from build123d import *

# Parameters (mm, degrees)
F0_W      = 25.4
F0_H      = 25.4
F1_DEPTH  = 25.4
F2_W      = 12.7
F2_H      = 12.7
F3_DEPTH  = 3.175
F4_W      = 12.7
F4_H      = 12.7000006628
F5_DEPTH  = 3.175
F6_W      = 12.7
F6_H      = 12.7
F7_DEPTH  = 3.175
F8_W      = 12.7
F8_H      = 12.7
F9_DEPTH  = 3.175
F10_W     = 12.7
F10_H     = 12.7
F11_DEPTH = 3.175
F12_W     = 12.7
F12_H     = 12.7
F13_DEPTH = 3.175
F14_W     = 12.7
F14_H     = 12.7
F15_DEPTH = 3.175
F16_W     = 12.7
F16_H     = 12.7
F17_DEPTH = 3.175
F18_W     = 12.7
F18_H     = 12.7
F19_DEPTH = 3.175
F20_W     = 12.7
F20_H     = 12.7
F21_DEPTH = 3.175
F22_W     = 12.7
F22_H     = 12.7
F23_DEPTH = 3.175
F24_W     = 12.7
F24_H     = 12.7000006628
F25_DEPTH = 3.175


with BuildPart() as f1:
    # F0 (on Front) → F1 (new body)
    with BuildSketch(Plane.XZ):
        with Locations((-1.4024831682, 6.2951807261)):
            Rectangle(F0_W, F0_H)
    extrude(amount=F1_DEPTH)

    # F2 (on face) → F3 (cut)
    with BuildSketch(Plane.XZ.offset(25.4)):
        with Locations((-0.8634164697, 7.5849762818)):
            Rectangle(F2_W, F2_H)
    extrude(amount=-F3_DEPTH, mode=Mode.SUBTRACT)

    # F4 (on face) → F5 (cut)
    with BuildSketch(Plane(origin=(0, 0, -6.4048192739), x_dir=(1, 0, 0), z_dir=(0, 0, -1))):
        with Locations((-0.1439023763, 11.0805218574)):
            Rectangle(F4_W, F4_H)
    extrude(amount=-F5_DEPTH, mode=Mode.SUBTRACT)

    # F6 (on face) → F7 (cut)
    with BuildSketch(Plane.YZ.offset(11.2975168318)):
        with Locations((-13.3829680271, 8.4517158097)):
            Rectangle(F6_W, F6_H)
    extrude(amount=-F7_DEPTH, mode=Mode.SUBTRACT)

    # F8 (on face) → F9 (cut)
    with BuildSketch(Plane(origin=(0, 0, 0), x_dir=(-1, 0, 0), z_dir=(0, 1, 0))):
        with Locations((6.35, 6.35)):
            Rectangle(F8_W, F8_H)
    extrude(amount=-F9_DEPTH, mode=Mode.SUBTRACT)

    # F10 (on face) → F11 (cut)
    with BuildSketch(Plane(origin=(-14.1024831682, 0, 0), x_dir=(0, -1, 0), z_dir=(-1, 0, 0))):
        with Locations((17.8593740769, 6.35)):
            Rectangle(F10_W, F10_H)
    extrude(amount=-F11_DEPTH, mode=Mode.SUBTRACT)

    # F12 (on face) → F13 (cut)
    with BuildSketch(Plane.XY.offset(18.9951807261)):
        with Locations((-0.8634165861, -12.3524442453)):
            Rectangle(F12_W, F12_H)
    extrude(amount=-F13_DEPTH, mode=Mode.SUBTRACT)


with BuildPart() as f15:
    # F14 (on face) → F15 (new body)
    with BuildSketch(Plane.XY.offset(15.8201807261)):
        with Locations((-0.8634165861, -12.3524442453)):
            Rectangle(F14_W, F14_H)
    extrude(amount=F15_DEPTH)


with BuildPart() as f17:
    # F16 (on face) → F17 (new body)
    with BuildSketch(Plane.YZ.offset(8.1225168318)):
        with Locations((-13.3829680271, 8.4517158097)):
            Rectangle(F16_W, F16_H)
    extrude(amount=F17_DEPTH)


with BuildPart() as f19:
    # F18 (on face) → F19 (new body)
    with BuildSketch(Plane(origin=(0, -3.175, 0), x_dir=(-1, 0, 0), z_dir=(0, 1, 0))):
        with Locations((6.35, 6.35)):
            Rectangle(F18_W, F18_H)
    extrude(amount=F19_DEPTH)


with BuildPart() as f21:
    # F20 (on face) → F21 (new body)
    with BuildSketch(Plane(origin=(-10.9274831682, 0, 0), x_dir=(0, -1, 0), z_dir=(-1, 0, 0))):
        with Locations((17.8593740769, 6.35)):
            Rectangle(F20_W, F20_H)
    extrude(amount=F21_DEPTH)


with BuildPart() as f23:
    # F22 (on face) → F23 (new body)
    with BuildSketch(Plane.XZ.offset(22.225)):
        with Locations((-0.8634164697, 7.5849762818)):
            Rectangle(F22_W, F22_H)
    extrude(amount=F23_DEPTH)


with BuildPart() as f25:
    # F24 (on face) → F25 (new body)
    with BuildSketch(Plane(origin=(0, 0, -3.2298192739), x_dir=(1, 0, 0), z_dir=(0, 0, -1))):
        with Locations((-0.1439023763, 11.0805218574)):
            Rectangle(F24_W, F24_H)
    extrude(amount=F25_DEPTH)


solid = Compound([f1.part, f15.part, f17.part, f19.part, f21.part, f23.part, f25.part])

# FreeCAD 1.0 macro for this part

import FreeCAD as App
import Part
import Sketcher

V = App.Vector
Q = App.Units.Quantity


def add_polygon(sketch, points):
    """Adds a closed chain of lines whose ends are joined by coincident constraints."""
    first, n = sketch.GeometryCount, len(points)
    for a, b in zip(points, points[1:] + points[:1]):
        sketch.addGeometry(Part.LineSegment(App.Vector(*a, 0), App.Vector(*b, 0)), False)
    for i in range(n):
        sketch.addConstraint(Sketcher.Constraint("Coincident", first + i, 2, first + (i + 1) % n, 1))

doc = App.newDocument("Part")
body = doc.addObject("PartDesign::Body", "Body")

# Sketch on XZ plane
sketch1 = doc.addObject("Sketcher::SketchObject", "Sketch")
body.addObject(sketch1)
sketch1.AttachmentSupport = (doc.XZ_Plane, [""])
sketch1.MapMode = "FlatFace"
add_polygon(sketch1, [(-14, 19), (-14, -6), (11, -6), (11, 19)])  # lines 0-3
sketch1.addConstraint(Sketcher.Constraint("Vertical", 0))
sketch1.addConstraint(Sketcher.Constraint("Horizontal", 1))
sketch1.addConstraint(Sketcher.Constraint("Vertical", 2))
sketch1.addConstraint(Sketcher.Constraint("Horizontal", 3))
sketch1.addConstraint(Sketcher.Constraint("Equal", 3, 0))
sketch1.addConstraint(Sketcher.Constraint("DistanceX", 1, 1, 1, 2, Q("1 in")))
sketch1.addConstraint(Sketcher.Constraint("DistanceY", 0, 2, -1, 1, Q("6.404819 mm")))
sketch1.addConstraint(Sketcher.Constraint("DistanceX", 0, 2, -1, 1, Q("14.102483 mm")))
pad1 = doc.addObject("PartDesign::Pad", "Pad")
body.addObject(pad1)
pad1.Profile = sketch1
pad1.Length = Q("1 in")

# Sketch on XZ plane
sketch2 = doc.addObject("Sketcher::SketchObject", "Sketch001")
body.addObject(sketch2)
sketch2.AttachmentSupport = (doc.XZ_Plane, [""])
sketch2.MapMode = "FlatFace"
sketch2.AttachmentOffset = App.Placement(V(0, 0, 1 * 25.4), App.Rotation())
add_polygon(sketch2, [(-7, 14), (-7, 1), (5, 1), (5, 14)])  # lines 0-3
sketch2.addConstraint(Sketcher.Constraint("Vertical", 0))
sketch2.addConstraint(Sketcher.Constraint("Horizontal", 1))
sketch2.addConstraint(Sketcher.Constraint("Vertical", 2))
sketch2.addConstraint(Sketcher.Constraint("Horizontal", 3))
sketch2.addConstraint(Sketcher.Constraint("Equal", 3, 0))
sketch2.addConstraint(Sketcher.Constraint("DistanceX", 1, 1, 1, 2, Q("0.5 in")))
sketch2.addConstraint(Sketcher.Constraint("DistanceX", 0, 2, -1, 1, Q("7.213416 mm")))
sketch2.addConstraint(Sketcher.Constraint("DistanceY", -1, 1, 0, 2, Q("1.234976 mm")))
pocket1 = doc.addObject("PartDesign::Pocket", "Pocket")
body.addObject(pocket1)
pocket1.Profile = sketch2
pocket1.Length = Q("0.125 in")

# Sketch on XY plane
sketch3 = doc.addObject("Sketcher::SketchObject", "Sketch002")
body.addObject(sketch3)
sketch3.AttachmentSupport = (doc.XY_Plane, [""])
sketch3.MapMode = "FlatFace"
sketch3.AttachmentOffset = App.Placement(V(0, 0, -6.404819), App.Rotation())
add_polygon(sketch3, [(-6, -17), (-6, -5), (6, -5), (6, -17)])  # lines 0-3
sketch3.addConstraint(Sketcher.Constraint("Vertical", 0))
sketch3.addConstraint(Sketcher.Constraint("Horizontal", 1))
sketch3.addConstraint(Sketcher.Constraint("Vertical", 2))
sketch3.addConstraint(Sketcher.Constraint("Horizontal", 3))
sketch3.addConstraint(Sketcher.Constraint("Equal", 3, 0))
sketch3.addConstraint(Sketcher.Constraint("DistanceX", 1, 1, 1, 2, Q("0.5 in")))
sketch3.addConstraint(Sketcher.Constraint("DistanceY", 0, 2, -1, 1, Q("4.730522 mm")))
sketch3.addConstraint(Sketcher.Constraint("DistanceX", 0, 2, -1, 1, Q("6.493902 mm")))
pocket2 = doc.addObject("PartDesign::Pocket", "Pocket001")
body.addObject(pocket2)
pocket2.Profile = sketch3
pocket2.Length = Q("0.125 in")
pocket2.Reversed = True

# Sketch on YZ plane
sketch4 = doc.addObject("Sketcher::SketchObject", "Sketch003")
body.addObject(sketch4)
sketch4.AttachmentSupport = (doc.YZ_Plane, [""])
sketch4.MapMode = "FlatFace"
sketch4.AttachmentOffset = App.Placement(V(0, 0, 11.297517), App.Rotation())
add_polygon(sketch4, [(-20, 15), (-20, 2), (-7, 2), (-7, 15)])  # lines 0-3
sketch4.addConstraint(Sketcher.Constraint("Vertical", 0))
sketch4.addConstraint(Sketcher.Constraint("Horizontal", 1))
sketch4.addConstraint(Sketcher.Constraint("Vertical", 2))
sketch4.addConstraint(Sketcher.Constraint("Horizontal", 3))
sketch4.addConstraint(Sketcher.Constraint("Equal", 3, 0))
sketch4.addConstraint(Sketcher.Constraint("DistanceX", 1, 1, 1, 2, Q("0.5 in")))
sketch4.addConstraint(Sketcher.Constraint("DistanceX", 0, 2, -1, 1, Q("19.732968 mm")))
sketch4.addConstraint(Sketcher.Constraint("DistanceY", -1, 1, 0, 2, Q("2.101716 mm")))
pocket3 = doc.addObject("PartDesign::Pocket", "Pocket002")
body.addObject(pocket3)
pocket3.Profile = sketch4
pocket3.Length = Q("0.125 in")

# Sketch on XZ plane
sketch5 = doc.addObject("Sketcher::SketchObject", "Sketch004")
body.addObject(sketch5)
sketch5.AttachmentSupport = (doc.XZ_Plane, [""])
sketch5.MapMode = "FlatFace"
add_polygon(sketch5, [(0, 13), (0, 0), (-13, 0), (-13, 13)])  # lines 0-3
sketch5.addConstraint(Sketcher.Constraint("Vertical", 0))
sketch5.addConstraint(Sketcher.Constraint("Horizontal", 1))
sketch5.addConstraint(Sketcher.Constraint("Vertical", 2))
sketch5.addConstraint(Sketcher.Constraint("Horizontal", 3))
sketch5.addConstraint(Sketcher.Constraint("Coincident", 0, 2, -1, 1))
sketch5.addConstraint(Sketcher.Constraint("Equal", 3, 0))
sketch5.addConstraint(Sketcher.Constraint("DistanceX", 1, 2, 1, 1, Q("0.5 in")))
pocket4 = doc.addObject("PartDesign::Pocket", "Pocket003")
body.addObject(pocket4)
pocket4.Profile = sketch5
pocket4.Length = Q("0.125 in")
pocket4.Reversed = True

# Sketch on YZ plane
sketch6 = doc.addObject("Sketcher::SketchObject", "Sketch005")
body.addObject(sketch6)
sketch6.AttachmentSupport = (doc.YZ_Plane, [""])
sketch6.MapMode = "FlatFace"
sketch6.AttachmentOffset = App.Placement(V(0, 0, -14.102483), App.Rotation())
add_polygon(sketch6, [(-12, 13), (-12, 0), (-24, 0), (-24, 13)])  # lines 0-3
sketch6.addConstraint(Sketcher.Constraint("Vertical", 0))
sketch6.addConstraint(Sketcher.Constraint("Horizontal", 1))
sketch6.addConstraint(Sketcher.Constraint("Vertical", 2))
sketch6.addConstraint(Sketcher.Constraint("Horizontal", 3))
sketch6.addConstraint(Sketcher.Constraint("PointOnObject", 0, 2, -1))
sketch6.addConstraint(Sketcher.Constraint("Equal", 3, 0))
sketch6.addConstraint(Sketcher.Constraint("DistanceX", 1, 2, 1, 1, Q("0.5 in")))
sketch6.addConstraint(Sketcher.Constraint("DistanceX", 0, 2, -1, 1, Q("0.453125 in")))
pocket5 = doc.addObject("PartDesign::Pocket", "Pocket004")
body.addObject(pocket5)
pocket5.Profile = sketch6
pocket5.Length = Q("0.125 in")
pocket5.Reversed = True

# Sketch on XY plane
sketch7 = doc.addObject("Sketcher::SketchObject", "Sketch006")
body.addObject(sketch7)
sketch7.AttachmentSupport = (doc.XY_Plane, [""])
sketch7.MapMode = "FlatFace"
sketch7.AttachmentOffset = App.Placement(V(0, 0, 18.995181), App.Rotation())
add_polygon(sketch7, [(-7, -6), (-7, -19), (5, -19), (5, -6)])  # lines 0-3
sketch7.addConstraint(Sketcher.Constraint("Vertical", 0))
sketch7.addConstraint(Sketcher.Constraint("Horizontal", 1))
sketch7.addConstraint(Sketcher.Constraint("Vertical", 2))
sketch7.addConstraint(Sketcher.Constraint("Horizontal", 3))
sketch7.addConstraint(Sketcher.Constraint("Equal", 3, 0))
sketch7.addConstraint(Sketcher.Constraint("DistanceX", 1, 1, 1, 2, Q("0.5 in")))
sketch7.addConstraint(Sketcher.Constraint("DistanceX", 0, 2, -1, 1, Q("7.213417 mm")))
sketch7.addConstraint(Sketcher.Constraint("DistanceY", 0, 2, -1, 1, Q("18.702444 mm")))
pocket6 = doc.addObject("PartDesign::Pocket", "Pocket005")
body.addObject(pocket6)
pocket6.Profile = sketch7
pocket6.Length = Q("0.125 in")
body2 = doc.addObject("PartDesign::Body", "Body001")

# Sketch on XY plane
sketch8 = doc.addObject("Sketcher::SketchObject", "Sketch007")
body2.addObject(sketch8)
sketch8.AttachmentSupport = (doc.getObject("XY_Plane001"), [""])
sketch8.MapMode = "FlatFace"
sketch8.AttachmentOffset = App.Placement(V(0, 0, 15.820181), App.Rotation())
add_polygon(sketch8, [(-7, -6), (-7, -19), (5, -19), (5, -6)])  # lines 0-3
sketch8.addConstraint(Sketcher.Constraint("Vertical", 0))
sketch8.addConstraint(Sketcher.Constraint("Horizontal", 1))
sketch8.addConstraint(Sketcher.Constraint("Vertical", 2))
sketch8.addConstraint(Sketcher.Constraint("Horizontal", 3))
sketch8.addConstraint(Sketcher.Constraint("Equal", 3, 0))
sketch8.addConstraint(Sketcher.Constraint("DistanceX", 1, 1, 1, 2, Q("0.5 in")))
sketch8.addConstraint(Sketcher.Constraint("DistanceX", 0, 2, -1, 1, Q("7.213417 mm")))
sketch8.addConstraint(Sketcher.Constraint("DistanceY", 0, 2, -1, 1, Q("18.702444 mm")))
pad2 = doc.addObject("PartDesign::Pad", "Pad001")
body2.addObject(pad2)
pad2.Profile = sketch8
pad2.Length = Q("0.125 in")
body3 = doc.addObject("PartDesign::Body", "Body002")

# Sketch on YZ plane
sketch9 = doc.addObject("Sketcher::SketchObject", "Sketch008")
body3.addObject(sketch9)
sketch9.AttachmentSupport = (doc.getObject("YZ_Plane002"), [""])
sketch9.MapMode = "FlatFace"
sketch9.AttachmentOffset = App.Placement(V(0, 0, 8.122517), App.Rotation())
add_polygon(sketch9, [(-20, 15), (-20, 2), (-7, 2), (-7, 15)])  # lines 0-3
sketch9.addConstraint(Sketcher.Constraint("Vertical", 0))
sketch9.addConstraint(Sketcher.Constraint("Horizontal", 1))
sketch9.addConstraint(Sketcher.Constraint("Vertical", 2))
sketch9.addConstraint(Sketcher.Constraint("Horizontal", 3))
sketch9.addConstraint(Sketcher.Constraint("Equal", 3, 0))
sketch9.addConstraint(Sketcher.Constraint("DistanceX", 1, 1, 1, 2, Q("0.5 in")))
sketch9.addConstraint(Sketcher.Constraint("DistanceX", 0, 2, -1, 1, Q("19.732968 mm")))
sketch9.addConstraint(Sketcher.Constraint("DistanceY", -1, 1, 0, 2, Q("2.101716 mm")))
pad3 = doc.addObject("PartDesign::Pad", "Pad002")
body3.addObject(pad3)
pad3.Profile = sketch9
pad3.Length = Q("0.125 in")
body4 = doc.addObject("PartDesign::Body", "Body003")

# Sketch on XZ plane
sketch10 = doc.addObject("Sketcher::SketchObject", "Sketch009")
body4.addObject(sketch10)
sketch10.AttachmentSupport = (doc.getObject("XZ_Plane003"), [""])
sketch10.MapMode = "FlatFace"
sketch10.AttachmentOffset = App.Placement(V(0, 0, 0.125 * 25.4), App.Rotation())
add_polygon(sketch10, [(0, 13), (0, 0), (-13, 0), (-13, 13)])  # lines 0-3
sketch10.addConstraint(Sketcher.Constraint("Vertical", 0))
sketch10.addConstraint(Sketcher.Constraint("Horizontal", 1))
sketch10.addConstraint(Sketcher.Constraint("Vertical", 2))
sketch10.addConstraint(Sketcher.Constraint("Horizontal", 3))
sketch10.addConstraint(Sketcher.Constraint("Coincident", 0, 2, -1, 1))
sketch10.addConstraint(Sketcher.Constraint("Equal", 3, 0))
sketch10.addConstraint(Sketcher.Constraint("DistanceX", 1, 2, 1, 1, Q("0.5 in")))
pad4 = doc.addObject("PartDesign::Pad", "Pad003")
body4.addObject(pad4)
pad4.Profile = sketch10
pad4.Length = Q("0.125 in")
pad4.Reversed = True
body5 = doc.addObject("PartDesign::Body", "Body004")

# Sketch on YZ plane
sketch11 = doc.addObject("Sketcher::SketchObject", "Sketch010")
body5.addObject(sketch11)
sketch11.AttachmentSupport = (doc.getObject("YZ_Plane004"), [""])
sketch11.MapMode = "FlatFace"
sketch11.AttachmentOffset = App.Placement(V(0, 0, -10.927483), App.Rotation())
add_polygon(sketch11, [(-12, 13), (-12, 0), (-24, 0), (-24, 13)])  # lines 0-3
sketch11.addConstraint(Sketcher.Constraint("Vertical", 0))
sketch11.addConstraint(Sketcher.Constraint("Horizontal", 1))
sketch11.addConstraint(Sketcher.Constraint("Vertical", 2))
sketch11.addConstraint(Sketcher.Constraint("Horizontal", 3))
sketch11.addConstraint(Sketcher.Constraint("PointOnObject", 0, 2, -1))
sketch11.addConstraint(Sketcher.Constraint("Equal", 3, 0))
sketch11.addConstraint(Sketcher.Constraint("DistanceX", 1, 2, 1, 1, Q("0.5 in")))
sketch11.addConstraint(Sketcher.Constraint("DistanceX", 0, 2, -1, 1, Q("0.453125 in")))
pad5 = doc.addObject("PartDesign::Pad", "Pad004")
body5.addObject(pad5)
pad5.Profile = sketch11
pad5.Length = Q("0.125 in")
pad5.Reversed = True
body6 = doc.addObject("PartDesign::Body", "Body005")

# Sketch on XZ plane
sketch12 = doc.addObject("Sketcher::SketchObject", "Sketch011")
body6.addObject(sketch12)
sketch12.AttachmentSupport = (doc.getObject("XZ_Plane005"), [""])
sketch12.MapMode = "FlatFace"
sketch12.AttachmentOffset = App.Placement(V(0, 0, 0.875 * 25.4), App.Rotation())
add_polygon(sketch12, [(-7, 14), (-7, 1), (5, 1), (5, 14)])  # lines 0-3
sketch12.addConstraint(Sketcher.Constraint("Vertical", 0))
sketch12.addConstraint(Sketcher.Constraint("Horizontal", 1))
sketch12.addConstraint(Sketcher.Constraint("Vertical", 2))
sketch12.addConstraint(Sketcher.Constraint("Horizontal", 3))
sketch12.addConstraint(Sketcher.Constraint("Equal", 3, 0))
sketch12.addConstraint(Sketcher.Constraint("DistanceX", 1, 1, 1, 2, Q("0.5 in")))
sketch12.addConstraint(Sketcher.Constraint("DistanceX", 0, 2, -1, 1, Q("7.213416 mm")))
sketch12.addConstraint(Sketcher.Constraint("DistanceY", -1, 1, 0, 2, Q("1.234976 mm")))
pad6 = doc.addObject("PartDesign::Pad", "Pad005")
body6.addObject(pad6)
pad6.Profile = sketch12
pad6.Length = Q("0.125 in")
body7 = doc.addObject("PartDesign::Body", "Body006")

# Sketch on XY plane
sketch13 = doc.addObject("Sketcher::SketchObject", "Sketch012")
body7.addObject(sketch13)
sketch13.AttachmentSupport = (doc.getObject("XY_Plane006"), [""])
sketch13.MapMode = "FlatFace"
sketch13.AttachmentOffset = App.Placement(V(0, 0, -3.229819), App.Rotation())
add_polygon(sketch13, [(-6, -17), (-6, -5), (6, -5), (6, -17)])  # lines 0-3
sketch13.addConstraint(Sketcher.Constraint("Vertical", 0))
sketch13.addConstraint(Sketcher.Constraint("Horizontal", 1))
sketch13.addConstraint(Sketcher.Constraint("Vertical", 2))
sketch13.addConstraint(Sketcher.Constraint("Horizontal", 3))
sketch13.addConstraint(Sketcher.Constraint("Equal", 3, 0))
sketch13.addConstraint(Sketcher.Constraint("DistanceX", 1, 1, 1, 2, Q("0.5 in")))
sketch13.addConstraint(Sketcher.Constraint("DistanceY", 0, 2, -1, 1, Q("4.730522 mm")))
sketch13.addConstraint(Sketcher.Constraint("DistanceX", 0, 2, -1, 1, Q("6.493902 mm")))
pad7 = doc.addObject("PartDesign::Pad", "Pad006")
body7.addObject(pad7)
pad7.Profile = sketch13
pad7.Length = Q("0.125 in")
pad7.Reversed = True

doc.recompute()
